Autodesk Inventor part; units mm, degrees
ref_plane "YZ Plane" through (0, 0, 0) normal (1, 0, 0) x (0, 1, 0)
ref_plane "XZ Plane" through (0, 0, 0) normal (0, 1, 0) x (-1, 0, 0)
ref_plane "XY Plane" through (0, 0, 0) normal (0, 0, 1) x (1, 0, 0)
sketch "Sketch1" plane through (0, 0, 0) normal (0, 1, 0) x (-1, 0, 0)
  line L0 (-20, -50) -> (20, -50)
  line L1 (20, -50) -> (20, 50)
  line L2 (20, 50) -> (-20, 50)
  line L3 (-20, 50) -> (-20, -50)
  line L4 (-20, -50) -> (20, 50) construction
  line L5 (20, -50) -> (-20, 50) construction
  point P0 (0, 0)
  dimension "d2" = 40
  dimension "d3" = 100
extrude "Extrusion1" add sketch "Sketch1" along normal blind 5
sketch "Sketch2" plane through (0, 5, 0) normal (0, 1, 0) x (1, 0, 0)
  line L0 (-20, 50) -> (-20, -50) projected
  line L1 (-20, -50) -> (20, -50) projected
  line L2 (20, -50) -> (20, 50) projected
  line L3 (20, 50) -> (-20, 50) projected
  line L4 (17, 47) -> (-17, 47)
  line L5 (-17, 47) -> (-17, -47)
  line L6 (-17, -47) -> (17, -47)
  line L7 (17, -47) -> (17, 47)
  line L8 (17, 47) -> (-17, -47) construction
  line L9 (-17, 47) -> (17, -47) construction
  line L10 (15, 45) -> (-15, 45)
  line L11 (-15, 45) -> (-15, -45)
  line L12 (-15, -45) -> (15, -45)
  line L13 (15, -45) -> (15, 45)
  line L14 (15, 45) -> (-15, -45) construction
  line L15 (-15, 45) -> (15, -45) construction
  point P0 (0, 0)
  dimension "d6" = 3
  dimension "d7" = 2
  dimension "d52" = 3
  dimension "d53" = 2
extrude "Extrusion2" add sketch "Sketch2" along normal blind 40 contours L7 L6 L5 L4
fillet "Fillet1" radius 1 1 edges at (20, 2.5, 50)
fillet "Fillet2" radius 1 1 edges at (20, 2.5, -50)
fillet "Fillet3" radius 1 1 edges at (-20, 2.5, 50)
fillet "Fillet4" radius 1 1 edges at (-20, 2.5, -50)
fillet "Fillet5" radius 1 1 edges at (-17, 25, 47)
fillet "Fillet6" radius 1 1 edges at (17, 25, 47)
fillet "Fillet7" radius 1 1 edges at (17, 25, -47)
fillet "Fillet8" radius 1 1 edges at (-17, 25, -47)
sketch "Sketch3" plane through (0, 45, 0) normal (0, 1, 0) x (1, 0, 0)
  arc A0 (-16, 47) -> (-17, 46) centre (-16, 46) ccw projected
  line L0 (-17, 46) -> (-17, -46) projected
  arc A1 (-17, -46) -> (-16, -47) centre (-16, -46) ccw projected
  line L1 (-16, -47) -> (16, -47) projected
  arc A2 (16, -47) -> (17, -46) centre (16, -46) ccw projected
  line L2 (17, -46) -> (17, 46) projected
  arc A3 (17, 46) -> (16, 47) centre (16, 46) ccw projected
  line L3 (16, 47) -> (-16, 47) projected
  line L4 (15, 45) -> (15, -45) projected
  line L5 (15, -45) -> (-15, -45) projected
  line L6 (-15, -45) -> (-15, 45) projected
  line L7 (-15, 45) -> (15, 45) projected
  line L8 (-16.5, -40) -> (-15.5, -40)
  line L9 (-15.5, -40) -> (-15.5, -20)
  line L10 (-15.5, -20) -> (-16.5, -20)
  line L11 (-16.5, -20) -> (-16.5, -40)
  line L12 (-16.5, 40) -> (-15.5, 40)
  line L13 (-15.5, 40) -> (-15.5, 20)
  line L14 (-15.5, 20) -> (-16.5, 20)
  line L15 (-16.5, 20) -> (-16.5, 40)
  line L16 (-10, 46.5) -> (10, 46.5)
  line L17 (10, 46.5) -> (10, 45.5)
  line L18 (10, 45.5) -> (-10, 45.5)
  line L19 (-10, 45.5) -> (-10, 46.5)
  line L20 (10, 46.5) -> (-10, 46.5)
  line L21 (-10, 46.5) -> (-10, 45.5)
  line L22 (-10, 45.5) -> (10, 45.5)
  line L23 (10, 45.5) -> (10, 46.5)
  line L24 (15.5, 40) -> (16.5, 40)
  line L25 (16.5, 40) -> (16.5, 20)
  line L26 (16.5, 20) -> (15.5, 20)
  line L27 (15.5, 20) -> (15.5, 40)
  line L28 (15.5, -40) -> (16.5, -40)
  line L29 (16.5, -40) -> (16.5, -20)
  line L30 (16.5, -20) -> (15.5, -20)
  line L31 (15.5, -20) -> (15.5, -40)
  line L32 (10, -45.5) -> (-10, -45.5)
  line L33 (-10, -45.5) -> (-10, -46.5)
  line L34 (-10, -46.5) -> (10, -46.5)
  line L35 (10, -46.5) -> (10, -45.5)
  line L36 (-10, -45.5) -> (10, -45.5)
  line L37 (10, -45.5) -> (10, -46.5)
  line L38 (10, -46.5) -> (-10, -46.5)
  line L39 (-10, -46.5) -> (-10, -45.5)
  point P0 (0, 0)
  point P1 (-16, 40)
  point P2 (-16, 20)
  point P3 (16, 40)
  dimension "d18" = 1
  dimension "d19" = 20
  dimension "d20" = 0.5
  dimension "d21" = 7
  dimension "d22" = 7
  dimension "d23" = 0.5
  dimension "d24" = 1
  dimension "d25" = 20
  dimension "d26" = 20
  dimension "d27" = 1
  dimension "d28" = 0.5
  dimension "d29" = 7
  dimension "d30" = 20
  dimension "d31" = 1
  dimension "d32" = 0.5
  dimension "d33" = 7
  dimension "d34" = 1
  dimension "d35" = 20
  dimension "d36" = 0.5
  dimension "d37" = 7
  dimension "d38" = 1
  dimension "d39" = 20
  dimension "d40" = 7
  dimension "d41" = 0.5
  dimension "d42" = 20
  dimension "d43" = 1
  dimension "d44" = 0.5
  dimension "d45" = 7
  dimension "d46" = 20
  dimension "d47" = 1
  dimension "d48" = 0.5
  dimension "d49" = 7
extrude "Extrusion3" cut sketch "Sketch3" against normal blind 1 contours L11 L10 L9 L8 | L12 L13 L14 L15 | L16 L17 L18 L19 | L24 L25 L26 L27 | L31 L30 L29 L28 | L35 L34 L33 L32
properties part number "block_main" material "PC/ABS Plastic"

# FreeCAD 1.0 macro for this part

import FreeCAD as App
import Part
import Sketcher

V = App.Vector
Q = App.Units.Quantity


def edges_at(feature, points):
    """Names of the edges that pass closest to the given points."""
    edges = feature.Shape.Edges
    near = lambda p: min(range(len(edges)), key=lambda i: edges[i].distToShape(Part.Vertex(*p))[0])
    return sorted({f"Edge{near(p) + 1}" for p in points})

doc = App.newDocument("Part")
params = doc.addObject("Spreadsheet::Sheet", "Params")
for row, (alias, value) in enumerate([
    ("sketch1_width", "40 mm"),
    ("sketch1_height", "100 mm"),
    ("pad1_length", "5 mm"),
    ("sketch2_width", "34 mm"),
    ("sketch2_height", "94 mm"),
    ("pad2_length", "40 mm"),
    ("fillet_radius", "1 mm"),
    ("fillet2_radius", "1 mm"),
    ("fillet3_radius", "1 mm"),
    ("fillet4_radius", "1 mm"),
    ("fillet5_radius", "1 mm"),
    ("fillet6_radius", "1 mm"),
    ("fillet7_radius", "1 mm"),
    ("fillet8_radius", "1 mm"),
    ("sketch3_width", "1 mm"),
    ("sketch3_width2", "20 mm"),
    ("pocket1_length", "1 mm"),
], start=1):
    params.set(f"A{row}", alias)
    params.set(f"B{row}", "=" + value)
    params.setAlias(f"B{row}", alias)

body = doc.addObject("PartDesign::Body", "Body")

# Sketch on XZ plane
sketch1 = body.newObject("Sketcher::SketchObject", "Sketch")
sketch1.AttachmentSupport = (doc.getObject("XZ_Plane"), [""])
sketch1.MapMode = "FlatFace"
sketch1.addGeometry([
    Part.LineSegment(V(20, 50, 0), V(20, -50, 0)),
    Part.LineSegment(V(20, -50, 0), V(-20, -50, 0)),
    Part.LineSegment(V(-20, -50, 0), V(-20, 50, 0)),
    Part.LineSegment(V(-20, 50, 0), V(20, 50, 0)),
], False)
sketch1.addConstraint([
    Sketcher.Constraint("Coincident", 0, 2, 1, 1),
    Sketcher.Constraint("Coincident", 1, 2, 2, 1),
    Sketcher.Constraint("Coincident", 2, 2, 3, 1),
    Sketcher.Constraint("Coincident", 3, 2, 0, 1),
    Sketcher.Constraint("Vertical", 0),
    Sketcher.Constraint("Horizontal", 1),
    Sketcher.Constraint("Vertical", 2),
    Sketcher.Constraint("Horizontal", 3),
    Sketcher.Constraint("Symmetric", 0, 2, 2, 2, -1, 1),
    Sketcher.Constraint("DistanceX", 1, 2, 1, 1, Q("40 mm")),
    Sketcher.Constraint("DistanceY", 0, 2, 0, 1, Q("100 mm")),
])
sketch1.setExpression("Constraints[9]", "Params.sketch1_width")
sketch1.setExpression("Constraints[10]", "Params.sketch1_height")
pad1 = body.newObject("PartDesign::Pad", "Pad")
pad1.Profile = sketch1
pad1.setExpression("Length", "Params.pad1_length")
pad1.Reversed = True

# Sketch on XZ plane
sketch2 = body.newObject("Sketcher::SketchObject", "Sketch001")
sketch2.AttachmentSupport = (doc.getObject("XZ_Plane"), [""])
sketch2.MapMode = "FlatFace"
sketch2.AttachmentOffset = App.Placement(V(0, 0, -5), App.Rotation())
sketch2.addGeometry([
    Part.LineSegment(V(17, 47, 0), V(17, -47, 0)),  # 0
    Part.LineSegment(V(17, -47, 0), V(-17, -47, 0)),  # 1
    Part.LineSegment(V(-17, -47, 0), V(-17, 47, 0)),  # 2
    Part.LineSegment(V(-17, 47, 0), V(17, 47, 0)),  # 3
    Part.LineSegment(V(-15, -45, 0), V(15, -45, 0)),  # 4
    Part.LineSegment(V(15, -45, 0), V(15, 45, 0)),  # 5
    Part.LineSegment(V(15, 45, 0), V(-15, 45, 0)),  # 6
    Part.LineSegment(V(-15, 45, 0), V(-15, -45, 0)),  # 7
], False)
sketch2.addConstraint([
    Sketcher.Constraint("Coincident", 0, 2, 1, 1),
    Sketcher.Constraint("Coincident", 1, 2, 2, 1),
    Sketcher.Constraint("Coincident", 2, 2, 3, 1),
    Sketcher.Constraint("Coincident", 3, 2, 0, 1),
    Sketcher.Constraint("Coincident", 4, 2, 5, 1),
    Sketcher.Constraint("Coincident", 5, 2, 6, 1),
    Sketcher.Constraint("Coincident", 6, 2, 7, 1),
    Sketcher.Constraint("Coincident", 7, 2, 4, 1),
    Sketcher.Constraint("Vertical", 0),
    Sketcher.Constraint("Horizontal", 1),
    Sketcher.Constraint("Vertical", 2),
    Sketcher.Constraint("Horizontal", 3),
    Sketcher.Constraint("Horizontal", 4),
    Sketcher.Constraint("Vertical", 5),
    Sketcher.Constraint("Horizontal", 6),
    Sketcher.Constraint("Vertical", 7),
    Sketcher.Constraint("Symmetric", 0, 2, 2, 2, -1, 1),
    Sketcher.Constraint("Symmetric", 4, 2, 6, 2, -1, 1),
    Sketcher.Constraint("DistanceX", 4, 2, 0, 2, Q("2 mm")),
    Sketcher.Constraint("DistanceY", 0, 2, 4, 2, Q("2 mm")),
    Sketcher.Constraint("DistanceX", 1, 2, 1, 1, Q("34 mm")),
    Sketcher.Constraint("DistanceY", 0, 2, 0, 1, Q("94 mm")),
])
sketch2.setExpression("Constraints[20]", "Params.sketch2_width")
sketch2.setExpression("Constraints[21]", "Params.sketch2_height")
pad2 = body.newObject("PartDesign::Pad", "Pad001")
pad2.Profile = sketch2
pad2.setExpression("Length", "Params.pad2_length")
pad2.Reversed = True
doc.recompute()

fillet = body.newObject("PartDesign::Fillet", "Fillet")
fillet.Base = (pad2, edges_at(pad2, [(20, 2.5, 50)]))
fillet.setExpression("Radius", "Params.fillet_radius")
doc.recompute()

fillet2 = body.newObject("PartDesign::Fillet", "Fillet001")
fillet2.Base = (fillet, edges_at(fillet, [(20, 2.5, -50)]))
fillet2.setExpression("Radius", "Params.fillet2_radius")
doc.recompute()

fillet3 = body.newObject("PartDesign::Fillet", "Fillet002")
fillet3.Base = (fillet2, edges_at(fillet2, [(-20, 2.5, 50)]))
fillet3.setExpression("Radius", "Params.fillet3_radius")
doc.recompute()

fillet4 = body.newObject("PartDesign::Fillet", "Fillet003")
fillet4.Base = (fillet3, edges_at(fillet3, [(-20, 2.5, -50)]))
fillet4.setExpression("Radius", "Params.fillet4_radius")
doc.recompute()

fillet5 = body.newObject("PartDesign::Fillet", "Fillet004")
fillet5.Base = (fillet4, edges_at(fillet4, [(-17, 25, 47)]))
fillet5.setExpression("Radius", "Params.fillet5_radius")
doc.recompute()

fillet6 = body.newObject("PartDesign::Fillet", "Fillet005")
fillet6.Base = (fillet5, edges_at(fillet5, [(17, 25, 47)]))
fillet6.setExpression("Radius", "Params.fillet6_radius")
doc.recompute()

fillet7 = body.newObject("PartDesign::Fillet", "Fillet006")
fillet7.Base = (fillet6, edges_at(fillet6, [(17, 25, -47)]))
fillet7.setExpression("Radius", "Params.fillet7_radius")
doc.recompute()

fillet8 = body.newObject("PartDesign::Fillet", "Fillet007")
fillet8.Base = (fillet7, edges_at(fillet7, [(-17, 25, -47)]))
fillet8.setExpression("Radius", "Params.fillet8_radius")

# Sketch on XZ plane
sketch3 = body.newObject("Sketcher::SketchObject", "Sketch002")
sketch3.AttachmentSupport = (doc.getObject("XZ_Plane"), [""])
sketch3.MapMode = "FlatFace"
sketch3.AttachmentOffset = App.Placement(V(0, 0, -45), App.Rotation())
sketch3.addGeometry([
    Part.LineSegment(V(-16.5, 20, 0), V(-16.5, 40, 0)),  # 0
    Part.LineSegment(V(-16.5, 40, 0), V(-15.5, 40, 0)),  # 1
    Part.LineSegment(V(-15.5, 40, 0), V(-15.5, 20, 0)),  # 2
    Part.LineSegment(V(-15.5, 20, 0), V(-16.5, 20, 0)),  # 3
    Part.LineSegment(V(-15.5, -40, 0), V(-16.5, -40, 0)),  # 4
    Part.LineSegment(V(-16.5, -40, 0), V(-16.5, -20, 0)),  # 5
    Part.LineSegment(V(-16.5, -20, 0), V(-15.5, -20, 0)),  # 6
    Part.LineSegment(V(-15.5, -20, 0), V(-15.5, -40, 0)),  # 7
    Part.LineSegment(V(10, -46.5, 0), V(-10, -46.5, 0)),  # 8
    Part.LineSegment(V(-10, -46.5, 0), V(-10, -45.5, 0)),  # 9
    Part.LineSegment(V(-10, -45.5, 0), V(10, -45.5, 0)),  # 10
    Part.LineSegment(V(10, -45.5, 0), V(10, -46.5, 0)),  # 11
    Part.LineSegment(V(16.5, -40, 0), V(15.5, -40, 0)),  # 12
    Part.LineSegment(V(15.5, -40, 0), V(15.5, -20, 0)),  # 13
    Part.LineSegment(V(15.5, -20, 0), V(16.5, -20, 0)),  # 14
    Part.LineSegment(V(16.5, -20, 0), V(16.5, -40, 0)),  # 15
    Part.LineSegment(V(15.5, 20, 0), V(15.5, 40, 0)),  # 16
    Part.LineSegment(V(15.5, 40, 0), V(16.5, 40, 0)),  # 17
    Part.LineSegment(V(16.5, 40, 0), V(16.5, 20, 0)),  # 18
    Part.LineSegment(V(16.5, 20, 0), V(15.5, 20, 0)),  # 19
    Part.LineSegment(V(10, 46.5, 0), V(10, 45.5, 0)),  # 20
    Part.LineSegment(V(10, 45.5, 0), V(-10, 45.5, 0)),  # 21
    Part.LineSegment(V(-10, 45.5, 0), V(-10, 46.5, 0)),  # 22
    Part.LineSegment(V(-10, 46.5, 0), V(10, 46.5, 0)),  # 23
], False)
sketch3.addConstraint([
    Sketcher.Constraint("Coincident", 0, 2, 1, 1),
    Sketcher.Constraint("Coincident", 1, 2, 2, 1),
    Sketcher.Constraint("Coincident", 2, 2, 3, 1),
    Sketcher.Constraint("Coincident", 3, 2, 0, 1),
    Sketcher.Constraint("Coincident", 4, 2, 5, 1),
    Sketcher.Constraint("Coincident", 5, 2, 6, 1),
    Sketcher.Constraint("Coincident", 6, 2, 7, 1),
    Sketcher.Constraint("Coincident", 7, 2, 4, 1),
    Sketcher.Constraint("Coincident", 8, 2, 9, 1),
    Sketcher.Constraint("Coincident", 9, 2, 10, 1),
    Sketcher.Constraint("Coincident", 10, 2, 11, 1),
    Sketcher.Constraint("Coincident", 11, 2, 8, 1),
    Sketcher.Constraint("Coincident", 12, 2, 13, 1),
    Sketcher.Constraint("Coincident", 13, 2, 14, 1),
    Sketcher.Constraint("Coincident", 14, 2, 15, 1),
    Sketcher.Constraint("Coincident", 15, 2, 12, 1),
    Sketcher.Constraint("Coincident", 16, 2, 17, 1),
    Sketcher.Constraint("Coincident", 17, 2, 18, 1),
    Sketcher.Constraint("Coincident", 18, 2, 19, 1),
    Sketcher.Constraint("Coincident", 19, 2, 16, 1),
    Sketcher.Constraint("Coincident", 20, 2, 21, 1),
    Sketcher.Constraint("Coincident", 21, 2, 22, 1),
    Sketcher.Constraint("Coincident", 22, 2, 23, 1),
    Sketcher.Constraint("Coincident", 23, 2, 20, 1),
    Sketcher.Constraint("Vertical", 0),
    Sketcher.Constraint("Horizontal", 1),
    Sketcher.Constraint("Vertical", 2),
    Sketcher.Constraint("Horizontal", 3),
    Sketcher.Constraint("Horizontal", 4),
    Sketcher.Constraint("Vertical", 5),
    Sketcher.Constraint("Horizontal", 6),
    Sketcher.Constraint("Vertical", 7),
    Sketcher.Constraint("Horizontal", 8),
    Sketcher.Constraint("Vertical", 9),
    Sketcher.Constraint("Horizontal", 10),
    Sketcher.Constraint("Vertical", 11),
    Sketcher.Constraint("Horizontal", 12),
    Sketcher.Constraint("Vertical", 13),
    Sketcher.Constraint("Horizontal", 14),
    Sketcher.Constraint("Vertical", 15),
    Sketcher.Constraint("Vertical", 16),
    Sketcher.Constraint("Horizontal", 17),
    Sketcher.Constraint("Vertical", 18),
    Sketcher.Constraint("Horizontal", 19),
    Sketcher.Constraint("Vertical", 20),
    Sketcher.Constraint("Horizontal", 21),
    Sketcher.Constraint("Vertical", 22),
    Sketcher.Constraint("Horizontal", 23),
    Sketcher.Constraint("Symmetric", 1, 2, 12, 2, -1, 1),
    Sketcher.Constraint("Symmetric", 3, 2, 14, 2, -1, 1),
    Sketcher.Constraint("Symmetric", 7, 2, 16, 2, -1, 1),
    Sketcher.Constraint("Symmetric", 5, 2, 18, 2, -1, 1),
    Sketcher.Constraint("Symmetric", 9, 2, 20, 2, -1, 1),
    Sketcher.Constraint("Symmetric", 11, 2, 22, 2, -1, 1),
    Sketcher.Constraint("Symmetric", 7, 2, 12, 2, -2),
    Sketcher.Constraint("Symmetric", 5, 2, 14, 2, -2),
    Sketcher.Constraint("Vertical", 11, 2, 20, 2),
    Sketcher.Constraint("Equal", 23, 0),
    Sketcher.Constraint("Equal", 19, 9),
    Sketcher.Constraint("DistanceX", 1, 1, 1, 2, Q("1 mm")),
    Sketcher.Constraint("DistanceX", 8, 2, 8, 1, Q("20 mm")),
    Sketcher.Constraint("DistanceY", -1, 1, 2, 2, Q("20 mm")),
    Sketcher.Constraint("DistanceX", 7, 2, 12, 2, Q("31 mm")),
    Sketcher.Constraint("DistanceY", 8, 2, -1, 1, Q("46.5 mm")),
])
sketch3.setExpression("Constraints[59]", "Params.sketch3_width")
sketch3.setExpression("Constraints[60]", "Params.sketch3_width2")
pocket1 = body.newObject("PartDesign::Pocket", "Pocket")
pocket1.Profile = sketch3
pocket1.setExpression("Length", "Params.pocket1_length")
pocket1.Reversed = True

doc.recompute()
